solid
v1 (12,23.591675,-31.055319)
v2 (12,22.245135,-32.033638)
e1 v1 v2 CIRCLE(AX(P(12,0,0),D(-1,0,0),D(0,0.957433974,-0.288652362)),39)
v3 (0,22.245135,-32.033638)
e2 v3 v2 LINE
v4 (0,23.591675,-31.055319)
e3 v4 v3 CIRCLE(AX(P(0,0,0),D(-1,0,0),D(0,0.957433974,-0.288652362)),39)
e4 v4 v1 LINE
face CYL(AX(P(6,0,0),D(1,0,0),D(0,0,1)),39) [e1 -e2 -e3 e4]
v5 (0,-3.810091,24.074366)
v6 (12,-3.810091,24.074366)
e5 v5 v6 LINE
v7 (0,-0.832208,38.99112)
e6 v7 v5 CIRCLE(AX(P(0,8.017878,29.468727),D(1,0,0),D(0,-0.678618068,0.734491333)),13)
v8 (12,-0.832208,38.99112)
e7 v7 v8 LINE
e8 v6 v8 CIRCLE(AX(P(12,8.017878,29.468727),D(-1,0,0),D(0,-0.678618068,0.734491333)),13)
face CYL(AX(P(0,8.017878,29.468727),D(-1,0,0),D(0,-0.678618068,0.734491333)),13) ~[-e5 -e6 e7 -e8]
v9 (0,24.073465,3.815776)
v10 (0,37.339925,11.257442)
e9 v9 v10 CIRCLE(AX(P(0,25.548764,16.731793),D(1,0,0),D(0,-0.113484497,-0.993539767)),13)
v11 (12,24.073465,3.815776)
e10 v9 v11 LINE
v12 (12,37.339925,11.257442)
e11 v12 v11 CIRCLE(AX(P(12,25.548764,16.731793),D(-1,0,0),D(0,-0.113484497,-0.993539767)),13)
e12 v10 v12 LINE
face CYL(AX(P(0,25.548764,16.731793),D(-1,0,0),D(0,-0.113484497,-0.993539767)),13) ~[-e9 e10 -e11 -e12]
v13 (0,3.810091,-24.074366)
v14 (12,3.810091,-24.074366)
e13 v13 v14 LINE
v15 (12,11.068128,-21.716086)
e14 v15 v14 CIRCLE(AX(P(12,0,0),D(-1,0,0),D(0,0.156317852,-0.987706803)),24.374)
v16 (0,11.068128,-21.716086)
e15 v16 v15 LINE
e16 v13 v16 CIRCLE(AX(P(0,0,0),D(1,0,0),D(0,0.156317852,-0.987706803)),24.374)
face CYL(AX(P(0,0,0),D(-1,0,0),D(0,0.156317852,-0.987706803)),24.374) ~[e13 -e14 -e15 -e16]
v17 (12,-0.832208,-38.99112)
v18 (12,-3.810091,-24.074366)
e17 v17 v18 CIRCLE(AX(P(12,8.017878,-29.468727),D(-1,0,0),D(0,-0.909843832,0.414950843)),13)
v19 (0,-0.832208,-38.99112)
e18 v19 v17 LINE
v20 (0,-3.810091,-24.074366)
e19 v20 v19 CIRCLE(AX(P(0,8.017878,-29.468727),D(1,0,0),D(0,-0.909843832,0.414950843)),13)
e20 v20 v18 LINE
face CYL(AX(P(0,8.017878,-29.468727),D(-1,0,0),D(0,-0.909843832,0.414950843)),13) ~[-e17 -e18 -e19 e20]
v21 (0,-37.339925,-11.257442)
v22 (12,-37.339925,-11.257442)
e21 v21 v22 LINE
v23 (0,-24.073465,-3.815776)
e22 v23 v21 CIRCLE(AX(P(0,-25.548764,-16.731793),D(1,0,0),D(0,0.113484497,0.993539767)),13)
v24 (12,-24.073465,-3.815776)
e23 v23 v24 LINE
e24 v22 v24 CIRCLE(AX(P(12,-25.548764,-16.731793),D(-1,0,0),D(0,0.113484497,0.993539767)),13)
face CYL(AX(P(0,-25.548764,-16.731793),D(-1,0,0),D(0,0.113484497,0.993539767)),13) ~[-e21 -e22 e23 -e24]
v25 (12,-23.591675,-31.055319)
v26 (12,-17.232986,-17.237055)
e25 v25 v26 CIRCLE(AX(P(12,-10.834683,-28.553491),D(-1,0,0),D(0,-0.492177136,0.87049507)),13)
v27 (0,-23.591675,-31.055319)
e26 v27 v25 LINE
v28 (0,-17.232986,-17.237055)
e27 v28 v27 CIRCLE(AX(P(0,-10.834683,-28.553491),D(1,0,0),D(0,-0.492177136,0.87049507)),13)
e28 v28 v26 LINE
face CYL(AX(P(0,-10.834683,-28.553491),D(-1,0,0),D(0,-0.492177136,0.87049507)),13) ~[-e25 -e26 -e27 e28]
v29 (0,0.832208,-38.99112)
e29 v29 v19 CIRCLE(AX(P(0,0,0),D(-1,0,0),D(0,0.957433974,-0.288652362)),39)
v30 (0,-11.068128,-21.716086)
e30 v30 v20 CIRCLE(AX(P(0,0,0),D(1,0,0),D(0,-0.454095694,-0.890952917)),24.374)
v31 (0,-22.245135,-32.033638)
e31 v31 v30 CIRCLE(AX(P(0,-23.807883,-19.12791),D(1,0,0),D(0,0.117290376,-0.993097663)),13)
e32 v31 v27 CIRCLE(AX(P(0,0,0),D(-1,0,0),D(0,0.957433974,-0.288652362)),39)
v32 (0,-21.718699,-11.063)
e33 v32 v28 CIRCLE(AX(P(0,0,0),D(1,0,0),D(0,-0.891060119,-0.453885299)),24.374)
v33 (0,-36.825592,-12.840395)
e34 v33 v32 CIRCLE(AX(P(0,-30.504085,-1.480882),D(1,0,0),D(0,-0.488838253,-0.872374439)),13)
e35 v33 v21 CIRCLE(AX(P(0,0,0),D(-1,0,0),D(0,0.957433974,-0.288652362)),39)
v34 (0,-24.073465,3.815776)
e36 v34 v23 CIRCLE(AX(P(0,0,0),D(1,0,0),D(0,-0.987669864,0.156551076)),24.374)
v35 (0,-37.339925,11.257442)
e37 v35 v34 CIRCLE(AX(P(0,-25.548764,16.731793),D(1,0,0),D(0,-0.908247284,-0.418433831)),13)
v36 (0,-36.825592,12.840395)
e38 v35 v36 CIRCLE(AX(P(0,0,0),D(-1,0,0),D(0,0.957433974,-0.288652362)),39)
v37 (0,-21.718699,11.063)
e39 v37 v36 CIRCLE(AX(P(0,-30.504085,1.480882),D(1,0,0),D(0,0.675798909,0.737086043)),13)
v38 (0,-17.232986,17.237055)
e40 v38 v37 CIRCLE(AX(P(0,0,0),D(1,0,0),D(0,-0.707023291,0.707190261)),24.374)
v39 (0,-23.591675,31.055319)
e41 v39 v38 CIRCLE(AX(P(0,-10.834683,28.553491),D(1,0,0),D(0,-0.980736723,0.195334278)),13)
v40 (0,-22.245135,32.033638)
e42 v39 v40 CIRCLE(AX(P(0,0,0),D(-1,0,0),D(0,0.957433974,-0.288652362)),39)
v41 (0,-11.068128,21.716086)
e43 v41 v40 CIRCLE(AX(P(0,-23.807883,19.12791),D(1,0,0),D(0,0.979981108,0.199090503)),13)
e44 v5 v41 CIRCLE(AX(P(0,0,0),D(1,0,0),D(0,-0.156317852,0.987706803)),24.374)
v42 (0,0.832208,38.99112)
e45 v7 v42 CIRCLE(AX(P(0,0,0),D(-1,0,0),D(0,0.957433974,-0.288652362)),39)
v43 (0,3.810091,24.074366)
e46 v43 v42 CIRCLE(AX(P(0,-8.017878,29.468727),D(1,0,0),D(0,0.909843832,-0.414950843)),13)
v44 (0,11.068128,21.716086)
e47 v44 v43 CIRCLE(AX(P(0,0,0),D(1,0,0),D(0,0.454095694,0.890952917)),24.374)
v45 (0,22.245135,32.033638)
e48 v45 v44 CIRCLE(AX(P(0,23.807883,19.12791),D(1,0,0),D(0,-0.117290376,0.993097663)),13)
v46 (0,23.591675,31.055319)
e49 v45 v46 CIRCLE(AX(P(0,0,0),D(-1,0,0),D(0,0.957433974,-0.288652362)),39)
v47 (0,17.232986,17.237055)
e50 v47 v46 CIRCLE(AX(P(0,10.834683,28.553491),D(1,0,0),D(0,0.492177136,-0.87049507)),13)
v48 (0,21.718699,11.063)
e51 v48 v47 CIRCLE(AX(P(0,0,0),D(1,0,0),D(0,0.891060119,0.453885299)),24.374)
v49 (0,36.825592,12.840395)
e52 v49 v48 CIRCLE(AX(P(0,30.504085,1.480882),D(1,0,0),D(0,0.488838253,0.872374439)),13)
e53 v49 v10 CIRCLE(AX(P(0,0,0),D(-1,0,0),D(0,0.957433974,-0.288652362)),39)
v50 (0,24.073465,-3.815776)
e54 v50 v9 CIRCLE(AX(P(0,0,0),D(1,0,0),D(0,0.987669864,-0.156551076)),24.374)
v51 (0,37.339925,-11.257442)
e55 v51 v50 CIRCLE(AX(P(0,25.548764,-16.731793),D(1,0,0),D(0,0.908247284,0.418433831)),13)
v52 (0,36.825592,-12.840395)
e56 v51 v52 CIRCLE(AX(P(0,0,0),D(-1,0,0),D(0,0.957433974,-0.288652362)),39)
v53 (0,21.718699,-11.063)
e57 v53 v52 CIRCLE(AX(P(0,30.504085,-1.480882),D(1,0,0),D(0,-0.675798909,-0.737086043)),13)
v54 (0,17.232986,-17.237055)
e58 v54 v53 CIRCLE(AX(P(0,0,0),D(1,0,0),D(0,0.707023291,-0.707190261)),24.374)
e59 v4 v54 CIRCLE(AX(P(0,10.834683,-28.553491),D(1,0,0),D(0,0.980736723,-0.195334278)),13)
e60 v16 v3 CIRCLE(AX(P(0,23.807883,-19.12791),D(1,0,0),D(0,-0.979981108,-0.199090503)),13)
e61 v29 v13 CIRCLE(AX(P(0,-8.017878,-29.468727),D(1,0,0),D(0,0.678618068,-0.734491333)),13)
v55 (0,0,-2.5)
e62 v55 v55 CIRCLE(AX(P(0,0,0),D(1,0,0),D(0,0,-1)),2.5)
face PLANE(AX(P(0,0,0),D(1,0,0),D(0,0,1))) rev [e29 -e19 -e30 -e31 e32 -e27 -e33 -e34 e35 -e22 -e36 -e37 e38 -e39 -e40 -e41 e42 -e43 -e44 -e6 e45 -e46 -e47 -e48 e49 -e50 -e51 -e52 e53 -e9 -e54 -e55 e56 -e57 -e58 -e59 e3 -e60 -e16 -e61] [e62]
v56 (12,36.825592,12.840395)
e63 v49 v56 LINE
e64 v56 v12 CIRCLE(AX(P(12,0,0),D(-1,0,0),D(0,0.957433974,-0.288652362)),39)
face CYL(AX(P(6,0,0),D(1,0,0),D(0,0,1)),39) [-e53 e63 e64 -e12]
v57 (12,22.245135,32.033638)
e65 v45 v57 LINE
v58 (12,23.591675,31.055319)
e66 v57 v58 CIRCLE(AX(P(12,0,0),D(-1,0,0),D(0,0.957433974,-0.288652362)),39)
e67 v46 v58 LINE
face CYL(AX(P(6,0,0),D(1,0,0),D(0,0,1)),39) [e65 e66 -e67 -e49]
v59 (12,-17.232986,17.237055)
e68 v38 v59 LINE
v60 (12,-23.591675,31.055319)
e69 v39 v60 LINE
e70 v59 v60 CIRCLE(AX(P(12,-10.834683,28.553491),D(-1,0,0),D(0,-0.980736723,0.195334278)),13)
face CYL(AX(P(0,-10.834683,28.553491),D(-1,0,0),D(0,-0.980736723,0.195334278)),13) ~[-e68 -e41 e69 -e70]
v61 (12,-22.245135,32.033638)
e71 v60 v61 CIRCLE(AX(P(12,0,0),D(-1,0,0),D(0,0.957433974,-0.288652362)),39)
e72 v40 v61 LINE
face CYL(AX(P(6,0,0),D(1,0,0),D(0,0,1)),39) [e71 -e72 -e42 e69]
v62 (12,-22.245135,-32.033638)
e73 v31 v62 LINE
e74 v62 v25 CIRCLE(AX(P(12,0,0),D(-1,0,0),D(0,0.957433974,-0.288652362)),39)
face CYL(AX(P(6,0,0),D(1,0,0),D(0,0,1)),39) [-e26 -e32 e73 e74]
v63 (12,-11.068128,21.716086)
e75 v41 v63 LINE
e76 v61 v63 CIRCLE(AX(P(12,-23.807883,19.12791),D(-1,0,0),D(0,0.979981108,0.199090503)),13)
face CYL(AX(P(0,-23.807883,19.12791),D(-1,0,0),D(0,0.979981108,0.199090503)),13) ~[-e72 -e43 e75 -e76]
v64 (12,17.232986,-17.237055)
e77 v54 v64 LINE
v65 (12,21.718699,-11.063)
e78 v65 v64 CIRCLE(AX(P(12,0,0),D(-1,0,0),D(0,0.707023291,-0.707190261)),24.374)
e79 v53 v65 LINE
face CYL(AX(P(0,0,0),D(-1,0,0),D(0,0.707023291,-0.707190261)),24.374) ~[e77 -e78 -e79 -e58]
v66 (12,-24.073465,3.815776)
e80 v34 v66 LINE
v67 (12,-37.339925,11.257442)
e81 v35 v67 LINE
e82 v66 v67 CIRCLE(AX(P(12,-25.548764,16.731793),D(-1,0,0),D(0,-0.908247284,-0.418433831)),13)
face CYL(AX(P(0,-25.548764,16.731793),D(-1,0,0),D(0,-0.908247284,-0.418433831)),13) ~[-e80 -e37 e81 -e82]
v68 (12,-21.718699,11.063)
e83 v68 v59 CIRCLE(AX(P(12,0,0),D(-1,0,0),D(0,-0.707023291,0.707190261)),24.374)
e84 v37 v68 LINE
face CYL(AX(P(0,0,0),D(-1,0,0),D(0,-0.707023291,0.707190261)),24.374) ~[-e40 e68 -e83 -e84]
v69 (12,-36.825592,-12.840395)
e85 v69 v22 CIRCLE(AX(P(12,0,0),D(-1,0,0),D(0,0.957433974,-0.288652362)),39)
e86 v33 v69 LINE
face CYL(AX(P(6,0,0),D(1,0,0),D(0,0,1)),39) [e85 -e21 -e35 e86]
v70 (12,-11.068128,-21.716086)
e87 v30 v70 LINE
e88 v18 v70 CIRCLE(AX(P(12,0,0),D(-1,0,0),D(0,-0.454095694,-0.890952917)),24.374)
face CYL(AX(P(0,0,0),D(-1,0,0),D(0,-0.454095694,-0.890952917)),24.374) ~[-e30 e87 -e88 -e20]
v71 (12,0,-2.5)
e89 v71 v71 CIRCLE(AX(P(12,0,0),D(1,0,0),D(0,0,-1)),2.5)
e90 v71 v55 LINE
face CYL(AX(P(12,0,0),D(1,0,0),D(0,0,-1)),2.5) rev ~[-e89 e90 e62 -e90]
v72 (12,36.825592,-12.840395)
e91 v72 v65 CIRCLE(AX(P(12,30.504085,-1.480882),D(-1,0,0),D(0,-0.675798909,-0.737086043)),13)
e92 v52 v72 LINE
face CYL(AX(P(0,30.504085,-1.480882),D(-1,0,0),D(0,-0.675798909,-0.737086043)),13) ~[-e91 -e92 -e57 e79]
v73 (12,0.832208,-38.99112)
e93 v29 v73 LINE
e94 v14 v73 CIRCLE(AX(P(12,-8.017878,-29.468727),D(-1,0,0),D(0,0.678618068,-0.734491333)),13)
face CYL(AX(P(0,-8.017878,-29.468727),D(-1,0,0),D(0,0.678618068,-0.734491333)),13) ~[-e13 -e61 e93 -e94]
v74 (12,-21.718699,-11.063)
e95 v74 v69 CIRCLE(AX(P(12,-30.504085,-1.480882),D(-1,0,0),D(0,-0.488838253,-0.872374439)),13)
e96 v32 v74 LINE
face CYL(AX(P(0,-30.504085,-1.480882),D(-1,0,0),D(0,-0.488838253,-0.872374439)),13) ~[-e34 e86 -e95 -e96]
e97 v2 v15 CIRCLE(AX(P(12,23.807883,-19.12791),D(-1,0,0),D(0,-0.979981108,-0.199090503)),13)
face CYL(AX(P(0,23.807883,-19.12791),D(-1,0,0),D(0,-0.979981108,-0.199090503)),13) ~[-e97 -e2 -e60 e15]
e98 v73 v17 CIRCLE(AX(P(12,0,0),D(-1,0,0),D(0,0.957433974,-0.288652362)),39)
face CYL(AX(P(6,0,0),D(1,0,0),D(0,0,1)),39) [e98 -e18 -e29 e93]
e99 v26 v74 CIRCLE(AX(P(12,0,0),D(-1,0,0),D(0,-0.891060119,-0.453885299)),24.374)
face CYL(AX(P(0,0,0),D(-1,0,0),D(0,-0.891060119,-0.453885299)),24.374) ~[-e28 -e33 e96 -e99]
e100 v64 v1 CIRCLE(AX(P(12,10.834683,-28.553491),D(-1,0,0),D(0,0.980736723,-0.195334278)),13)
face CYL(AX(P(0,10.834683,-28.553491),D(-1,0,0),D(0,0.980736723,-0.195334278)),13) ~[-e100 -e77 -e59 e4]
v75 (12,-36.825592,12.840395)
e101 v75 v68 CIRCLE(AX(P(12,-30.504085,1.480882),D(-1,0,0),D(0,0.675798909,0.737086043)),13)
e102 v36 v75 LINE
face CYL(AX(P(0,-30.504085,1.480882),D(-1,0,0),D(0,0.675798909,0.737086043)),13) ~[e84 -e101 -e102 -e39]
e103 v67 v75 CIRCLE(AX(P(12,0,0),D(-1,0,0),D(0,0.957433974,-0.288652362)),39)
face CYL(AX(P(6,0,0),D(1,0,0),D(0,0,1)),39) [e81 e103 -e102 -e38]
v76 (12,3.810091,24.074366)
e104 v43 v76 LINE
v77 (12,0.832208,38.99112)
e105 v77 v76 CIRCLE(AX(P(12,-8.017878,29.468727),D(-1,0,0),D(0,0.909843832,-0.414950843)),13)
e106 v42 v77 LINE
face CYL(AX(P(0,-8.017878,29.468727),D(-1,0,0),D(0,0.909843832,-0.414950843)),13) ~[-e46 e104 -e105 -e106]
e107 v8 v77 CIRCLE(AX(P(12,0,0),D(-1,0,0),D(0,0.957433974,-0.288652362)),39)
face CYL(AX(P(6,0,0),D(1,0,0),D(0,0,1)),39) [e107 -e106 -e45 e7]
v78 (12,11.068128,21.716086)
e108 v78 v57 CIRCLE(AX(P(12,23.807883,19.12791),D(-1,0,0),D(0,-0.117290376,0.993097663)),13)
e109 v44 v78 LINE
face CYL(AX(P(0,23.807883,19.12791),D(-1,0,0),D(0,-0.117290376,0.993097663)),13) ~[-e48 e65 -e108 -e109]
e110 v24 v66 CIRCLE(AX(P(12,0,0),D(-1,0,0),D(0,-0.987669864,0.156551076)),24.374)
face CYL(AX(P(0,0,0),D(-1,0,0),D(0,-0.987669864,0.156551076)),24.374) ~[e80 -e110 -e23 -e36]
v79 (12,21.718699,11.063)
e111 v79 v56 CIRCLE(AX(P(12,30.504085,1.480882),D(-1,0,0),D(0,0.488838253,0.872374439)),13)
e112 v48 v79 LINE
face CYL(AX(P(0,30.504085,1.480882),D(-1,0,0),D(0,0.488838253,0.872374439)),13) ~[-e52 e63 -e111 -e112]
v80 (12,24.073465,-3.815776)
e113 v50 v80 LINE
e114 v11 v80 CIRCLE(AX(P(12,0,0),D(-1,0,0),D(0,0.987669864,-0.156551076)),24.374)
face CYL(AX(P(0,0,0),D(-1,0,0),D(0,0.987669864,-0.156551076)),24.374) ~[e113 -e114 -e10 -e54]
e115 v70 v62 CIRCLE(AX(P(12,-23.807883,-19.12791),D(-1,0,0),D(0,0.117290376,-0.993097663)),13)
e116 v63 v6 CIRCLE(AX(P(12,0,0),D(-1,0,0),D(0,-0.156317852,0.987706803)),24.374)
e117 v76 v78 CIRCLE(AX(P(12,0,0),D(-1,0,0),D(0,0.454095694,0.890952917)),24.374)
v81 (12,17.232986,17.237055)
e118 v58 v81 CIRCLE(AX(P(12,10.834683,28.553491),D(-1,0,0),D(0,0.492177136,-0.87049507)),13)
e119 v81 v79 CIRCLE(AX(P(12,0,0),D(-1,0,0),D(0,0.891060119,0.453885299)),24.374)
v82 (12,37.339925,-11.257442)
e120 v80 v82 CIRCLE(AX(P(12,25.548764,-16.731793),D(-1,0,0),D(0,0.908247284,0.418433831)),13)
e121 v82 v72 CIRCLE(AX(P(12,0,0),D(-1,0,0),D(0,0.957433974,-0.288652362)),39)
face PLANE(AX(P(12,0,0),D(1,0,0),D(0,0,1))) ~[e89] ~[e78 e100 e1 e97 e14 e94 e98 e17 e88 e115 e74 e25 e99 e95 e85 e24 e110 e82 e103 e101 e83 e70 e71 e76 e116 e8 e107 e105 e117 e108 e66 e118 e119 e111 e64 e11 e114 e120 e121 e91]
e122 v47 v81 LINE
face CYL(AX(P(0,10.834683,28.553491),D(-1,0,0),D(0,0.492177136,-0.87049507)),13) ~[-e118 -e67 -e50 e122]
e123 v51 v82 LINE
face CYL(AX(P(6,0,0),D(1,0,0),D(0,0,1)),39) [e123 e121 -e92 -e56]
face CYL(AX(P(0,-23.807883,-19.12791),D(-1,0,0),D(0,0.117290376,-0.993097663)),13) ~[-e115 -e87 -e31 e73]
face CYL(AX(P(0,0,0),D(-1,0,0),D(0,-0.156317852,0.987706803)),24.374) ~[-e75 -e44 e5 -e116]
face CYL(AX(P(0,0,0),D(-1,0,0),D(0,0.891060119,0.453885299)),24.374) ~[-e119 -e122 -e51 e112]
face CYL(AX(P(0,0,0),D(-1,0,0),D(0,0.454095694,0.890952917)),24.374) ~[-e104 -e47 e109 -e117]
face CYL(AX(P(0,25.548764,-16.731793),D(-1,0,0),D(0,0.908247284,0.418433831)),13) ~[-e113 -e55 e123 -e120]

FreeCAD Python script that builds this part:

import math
import FreeCAD as App
import Part
import Sketcher

V = App.Vector
Q = App.Units.Quantity


def add_polygon(sketch, points):
    """Adds a closed chain of lines whose ends are joined by coincident constraints."""
    first, n = sketch.GeometryCount, len(points)
    for a, b in zip(points, points[1:] + points[:1]):
        sketch.addGeometry(Part.LineSegment(App.Vector(*a, 0), App.Vector(*b, 0)), False)
    for i in range(n):
        sketch.addConstraint(Sketcher.Constraint("Coincident", first + i, 2, first + (i + 1) % n, 1))

doc = App.newDocument("Part")
body = doc.addObject("PartDesign::Body", "Body")

# Sketch on XZ plane
sketch1 = doc.addObject("Sketcher::SketchObject", "Sketch")
body.addObject(sketch1)
sketch1.AttachmentSupport = (doc.XZ_Plane, [""])
sketch1.MapMode = "FlatFace"
add_polygon(sketch1, [(0, -39), (0, 0), (12, 0), (12, -39)])  # lines 0-3
sketch1.addConstraint(Sketcher.Constraint("Vertical", 0))
sketch1.addConstraint(Sketcher.Constraint("Horizontal", 1))
sketch1.addConstraint(Sketcher.Constraint("Vertical", 2))
sketch1.addConstraint(Sketcher.Constraint("Horizontal", 3))
sketch1.addConstraint(Sketcher.Constraint("Coincident", 0, 2, -1, 1))
sketch1.addConstraint(Sketcher.Constraint("DistanceX", 1, 1, 1, 2, Q("12 mm")))
sketch1.addConstraint(Sketcher.Constraint("DistanceY", 0, 1, 0, 2, Q("39 mm")))
revolution = doc.addObject("PartDesign::Revolution", "Revolution")
body.addObject(revolution)
revolution.Profile = sketch1
revolution.ReferenceAxis = (sketch1, ["H_Axis"])
revolution.Angle = 360

# Sketch on YZ plane
sketch2 = doc.addObject("Sketcher::SketchObject", "Sketch001")
body.addObject(sketch2)
sketch2.AttachmentSupport = (doc.YZ_Plane, [""])
sketch2.MapMode = "FlatFace"
sketch2.addGeometry(Part.ArcOfCircle(Part.Circle(V(0, 0, 0), V(0, 0, 1), 24), math.radians(-9.01), math.radians(9.01)), False)
sketch2.addGeometry(Part.ArcOfCircle(Part.Circle(V(26, -17, 0), V(0, 0, 1), 13), math.radians(25), math.radians(97)), False)
sketch2.addGeometry(Part.ArcOfCircle(Part.Circle(V(0, 0, 0), V(0, 0, 1), 39), math.radians(-17), math.radians(17)), False)
sketch2.addGeometry(Part.ArcOfCircle(Part.Circle(V(26, 17, 0), V(0, 0, 1), 13), math.radians(-97), math.radians(-25)), False)
sketch2.addConstraint(Sketcher.Constraint("Coincident", 0, 1, 1, 2))
sketch2.addConstraint(Sketcher.Constraint("Coincident", 1, 1, 2, 1))
sketch2.addConstraint(Sketcher.Constraint("Coincident", 2, 2, 3, 2))
sketch2.addConstraint(Sketcher.Constraint("Coincident", 3, 1, 0, 2))
sketch2.addConstraint(Sketcher.Constraint("Coincident", 0, 3, -1, 1))
sketch2.addConstraint(Sketcher.Constraint("Coincident", 2, 3, -1, 1))
sketch2.addConstraint(Sketcher.Constraint("Equal", 1, 3))
sketch2.addConstraint(Sketcher.Constraint("Symmetric", 1, 3, 3, 3, -1))
sketch2.addConstraint(Sketcher.Constraint("Radius", 1, Q("13 mm")))
sketch2.addConstraint(Sketcher.Constraint("Radius", 0, Q("24.374 mm")))
sketch2.addConstraint(Sketcher.Constraint("Radius", 2, Q("39.0254 mm")))
sketch2.addConstraint(Sketcher.Constraint("DistanceX", 0, 1, 1, 3, Q("1.475298 mm")))
sketch2.addConstraint(Sketcher.Constraint("DistanceX", -1, 1, 1, 1, Q("37.355978 mm")))
pocket1 = doc.addObject("PartDesign::Pocket", "Pocket")
body.addObject(pocket1)
pocket1.Profile = sketch2
pocket1.Type = "ThroughAll"
pocket1.Reversed = True
doc.recompute()

polarpattern = doc.addObject("PartDesign::PolarPattern", "PolarPattern")
body.addObject(polarpattern)
polarpattern.Originals = [pocket1]
polarpattern.Axis = (doc.X_Axis, [""])
polarpattern.Angle = 360
polarpattern.Occurrences = 10
body.Tip = polarpattern

# Sketch on YZ plane
sketch3 = doc.addObject("Sketcher::SketchObject", "Sketch002")
body.addObject(sketch3)
sketch3.AttachmentSupport = (doc.YZ_Plane, [""])
sketch3.MapMode = "FlatFace"
sketch3.addGeometry(Part.Circle(V(0, 0, 0), V(0, 0, 1), 1.5), False)
sketch3.addConstraint(Sketcher.Constraint("Coincident", 0, 3, -1, 1))
sketch3.addConstraint(Sketcher.Constraint("Diameter", 0, Q("3 mm")))
pocket2 = doc.addObject("PartDesign::Pocket", "Pocket001")
body.addObject(pocket2)
pocket2.Profile = sketch3
pocket2.Length = 100.000102
pocket2.Midplane = True

# Sketch on YZ plane
sketch4 = doc.addObject("Sketcher::SketchObject", "Sketch003")
body.addObject(sketch4)
sketch4.AttachmentSupport = (doc.YZ_Plane, [""])
sketch4.MapMode = "FlatFace"
sketch4.AttachmentOffset = App.Placement(V(0, 0, 12), App.Rotation())
sketch4.addGeometry(Part.Circle(V(0, 0, 0), V(0, 0, 1), 2.5), False)
sketch4.addConstraint(Sketcher.Constraint("Coincident", 0, 3, -1, 1))
sketch4.addConstraint(Sketcher.Constraint("Diameter", 0, Q("5 mm")))
pocket3 = doc.addObject("PartDesign::Pocket", "Pocket002")
body.addObject(pocket3)
pocket3.Profile = sketch4
pocket3.Type = "ThroughAll"

doc.recompute()
